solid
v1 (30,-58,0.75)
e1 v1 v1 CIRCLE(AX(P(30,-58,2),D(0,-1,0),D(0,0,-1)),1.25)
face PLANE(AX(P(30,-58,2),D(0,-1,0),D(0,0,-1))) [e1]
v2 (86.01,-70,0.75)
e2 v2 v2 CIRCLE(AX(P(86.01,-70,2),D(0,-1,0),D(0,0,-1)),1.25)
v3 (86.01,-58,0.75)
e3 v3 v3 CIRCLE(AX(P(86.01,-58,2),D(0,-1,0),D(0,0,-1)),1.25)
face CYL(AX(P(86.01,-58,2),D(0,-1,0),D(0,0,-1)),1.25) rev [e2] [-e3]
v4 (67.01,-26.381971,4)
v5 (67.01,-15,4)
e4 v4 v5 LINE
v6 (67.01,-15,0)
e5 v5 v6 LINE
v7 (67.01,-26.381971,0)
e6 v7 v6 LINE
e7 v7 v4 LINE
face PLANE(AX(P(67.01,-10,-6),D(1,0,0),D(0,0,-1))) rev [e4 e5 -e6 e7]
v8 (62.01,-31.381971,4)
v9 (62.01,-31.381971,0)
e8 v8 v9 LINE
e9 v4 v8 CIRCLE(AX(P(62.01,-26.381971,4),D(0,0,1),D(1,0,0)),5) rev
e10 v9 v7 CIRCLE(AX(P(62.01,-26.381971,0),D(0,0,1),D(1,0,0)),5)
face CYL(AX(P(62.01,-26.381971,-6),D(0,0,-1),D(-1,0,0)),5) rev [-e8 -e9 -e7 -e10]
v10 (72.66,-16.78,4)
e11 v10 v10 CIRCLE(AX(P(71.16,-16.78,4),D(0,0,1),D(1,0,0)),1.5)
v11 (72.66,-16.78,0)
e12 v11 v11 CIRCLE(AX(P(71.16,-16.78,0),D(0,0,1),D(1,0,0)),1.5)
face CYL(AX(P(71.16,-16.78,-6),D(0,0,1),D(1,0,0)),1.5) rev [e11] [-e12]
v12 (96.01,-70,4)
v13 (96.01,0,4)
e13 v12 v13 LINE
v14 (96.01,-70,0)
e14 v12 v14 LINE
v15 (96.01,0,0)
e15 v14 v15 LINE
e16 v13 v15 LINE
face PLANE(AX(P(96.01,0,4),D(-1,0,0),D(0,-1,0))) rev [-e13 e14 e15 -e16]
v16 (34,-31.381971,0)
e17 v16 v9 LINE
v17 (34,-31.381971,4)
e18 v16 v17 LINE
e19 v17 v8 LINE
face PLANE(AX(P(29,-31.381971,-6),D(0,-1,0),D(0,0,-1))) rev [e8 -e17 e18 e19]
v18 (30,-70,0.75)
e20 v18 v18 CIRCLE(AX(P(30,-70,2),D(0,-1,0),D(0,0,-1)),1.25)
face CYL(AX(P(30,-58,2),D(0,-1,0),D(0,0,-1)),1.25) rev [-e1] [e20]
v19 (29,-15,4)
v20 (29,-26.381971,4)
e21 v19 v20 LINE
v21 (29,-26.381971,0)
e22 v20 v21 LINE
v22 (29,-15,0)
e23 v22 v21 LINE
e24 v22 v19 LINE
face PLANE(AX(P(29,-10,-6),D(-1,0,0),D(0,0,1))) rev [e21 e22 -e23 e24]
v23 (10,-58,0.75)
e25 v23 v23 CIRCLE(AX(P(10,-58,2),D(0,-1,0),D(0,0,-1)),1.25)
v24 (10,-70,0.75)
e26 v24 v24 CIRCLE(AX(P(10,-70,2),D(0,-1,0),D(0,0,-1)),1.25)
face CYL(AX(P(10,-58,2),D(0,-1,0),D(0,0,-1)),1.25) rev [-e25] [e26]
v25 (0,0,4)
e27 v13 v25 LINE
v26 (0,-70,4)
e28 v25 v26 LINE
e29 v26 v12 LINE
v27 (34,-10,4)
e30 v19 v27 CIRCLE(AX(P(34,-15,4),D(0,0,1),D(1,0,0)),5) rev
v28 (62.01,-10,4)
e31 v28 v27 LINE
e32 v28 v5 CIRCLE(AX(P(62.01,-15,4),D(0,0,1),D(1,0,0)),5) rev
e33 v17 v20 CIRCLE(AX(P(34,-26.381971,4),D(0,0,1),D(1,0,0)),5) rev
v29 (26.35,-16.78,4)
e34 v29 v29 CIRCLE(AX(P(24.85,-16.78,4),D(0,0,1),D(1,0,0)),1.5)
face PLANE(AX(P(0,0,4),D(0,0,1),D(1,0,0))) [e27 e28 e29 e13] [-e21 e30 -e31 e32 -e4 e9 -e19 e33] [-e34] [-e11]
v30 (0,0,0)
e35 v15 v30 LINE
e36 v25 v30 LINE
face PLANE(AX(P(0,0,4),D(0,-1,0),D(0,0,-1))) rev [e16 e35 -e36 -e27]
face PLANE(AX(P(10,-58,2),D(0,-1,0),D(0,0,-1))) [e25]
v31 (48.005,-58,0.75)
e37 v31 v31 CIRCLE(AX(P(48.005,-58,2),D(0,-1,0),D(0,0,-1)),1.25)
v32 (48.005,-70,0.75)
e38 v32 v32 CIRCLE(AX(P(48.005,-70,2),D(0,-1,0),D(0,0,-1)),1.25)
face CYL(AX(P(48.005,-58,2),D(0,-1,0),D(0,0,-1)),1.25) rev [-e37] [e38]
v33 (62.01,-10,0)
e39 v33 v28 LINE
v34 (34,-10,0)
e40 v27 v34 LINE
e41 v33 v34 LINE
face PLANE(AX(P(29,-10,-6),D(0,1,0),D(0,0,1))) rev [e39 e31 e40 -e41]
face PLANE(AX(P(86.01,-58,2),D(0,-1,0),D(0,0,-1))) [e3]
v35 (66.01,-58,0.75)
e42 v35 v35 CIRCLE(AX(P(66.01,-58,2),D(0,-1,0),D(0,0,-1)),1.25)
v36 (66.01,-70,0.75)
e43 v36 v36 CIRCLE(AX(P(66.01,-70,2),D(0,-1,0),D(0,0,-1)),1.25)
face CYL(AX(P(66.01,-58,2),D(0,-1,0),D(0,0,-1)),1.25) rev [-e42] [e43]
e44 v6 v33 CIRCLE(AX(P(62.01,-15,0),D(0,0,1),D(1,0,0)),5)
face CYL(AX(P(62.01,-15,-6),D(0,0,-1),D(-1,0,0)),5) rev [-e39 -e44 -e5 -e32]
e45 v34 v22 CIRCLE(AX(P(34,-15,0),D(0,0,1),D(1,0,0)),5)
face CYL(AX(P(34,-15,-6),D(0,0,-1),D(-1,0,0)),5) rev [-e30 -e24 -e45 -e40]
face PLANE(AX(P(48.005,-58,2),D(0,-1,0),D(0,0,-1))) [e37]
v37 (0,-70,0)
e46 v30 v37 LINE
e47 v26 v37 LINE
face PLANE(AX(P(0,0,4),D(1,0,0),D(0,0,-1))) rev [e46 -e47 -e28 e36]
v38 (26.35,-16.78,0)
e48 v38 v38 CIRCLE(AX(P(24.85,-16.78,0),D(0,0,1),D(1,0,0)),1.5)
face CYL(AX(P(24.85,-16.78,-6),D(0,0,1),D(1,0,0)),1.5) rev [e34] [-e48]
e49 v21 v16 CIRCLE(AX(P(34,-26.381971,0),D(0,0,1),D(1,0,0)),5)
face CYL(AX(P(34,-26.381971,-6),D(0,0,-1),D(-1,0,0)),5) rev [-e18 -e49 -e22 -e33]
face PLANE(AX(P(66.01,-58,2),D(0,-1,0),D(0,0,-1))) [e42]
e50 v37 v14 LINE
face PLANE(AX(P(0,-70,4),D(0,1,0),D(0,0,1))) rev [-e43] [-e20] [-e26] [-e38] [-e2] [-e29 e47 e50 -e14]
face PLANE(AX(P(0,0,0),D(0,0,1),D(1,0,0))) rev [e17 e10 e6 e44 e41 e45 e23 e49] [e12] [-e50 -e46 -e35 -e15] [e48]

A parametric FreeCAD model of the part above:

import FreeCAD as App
import Part
import Sketcher
from FreeCAD import Vector
Q = App.Units.Quantity


def edges_at(feature, points):
    """Names of the edges that pass closest to the given points."""
    edges = feature.Shape.Edges
    near = lambda p: min(range(len(edges)), key=lambda i: edges[i].distToShape(Part.Vertex(*p))[0])
    return sorted({f"Edge{near(p) + 1}" for p in points})

doc = App.newDocument("Part")
body = doc.addObject("PartDesign::Body", "Body")

# Sketch on XY plane
sketch1 = body.newObject("Sketcher::SketchObject", "Sketch")
sketch1.AttachmentSupport = (doc.getObject("XY_Plane"), [""])
sketch1.MapMode = "FlatFace"
sketch1.addGeometry(Part.LineSegment(Vector(0, 0, 0), Vector(0, -70, 0)), False)
sketch1.addGeometry(Part.LineSegment(Vector(0, -70, 0), Vector(96, -70, 0)), False)
sketch1.addGeometry(Part.LineSegment(Vector(96, -70, 0), Vector(96, 0, 0)), False)
sketch1.addGeometry(Part.LineSegment(Vector(96, 0, 0), Vector(0, 0, 0)), False)
sketch1.addConstraint(Sketcher.Constraint("Coincident", 0, 2, 1, 1))
sketch1.addConstraint(Sketcher.Constraint("Coincident", 1, 2, 2, 1))
sketch1.addConstraint(Sketcher.Constraint("Coincident", 2, 2, 3, 1))
sketch1.addConstraint(Sketcher.Constraint("Coincident", 3, 2, 0, 1))
sketch1.addConstraint(Sketcher.Constraint("Vertical", 0))
sketch1.addConstraint(Sketcher.Constraint("Horizontal", 1))
sketch1.addConstraint(Sketcher.Constraint("Vertical", 2))
sketch1.addConstraint(Sketcher.Constraint("Horizontal", 3))
sketch1.addConstraint(Sketcher.Constraint("Coincident", 3, 2, -1, 1))
sketch1.addConstraint(Sketcher.Constraint("DistanceY", 0, 2, 0, 1, Q("70 mm")))
sketch1.addConstraint(Sketcher.Constraint("DistanceX", 1, 1, 1, 2, Q("96.01 mm")))
pad1 = body.newObject("PartDesign::Pad", "Pad")
pad1.Profile = sketch1
pad1.Length = 4

# Sketch on XZ plane
sketch2 = body.newObject("Sketcher::SketchObject", "Sketch001")
sketch2.AttachmentSupport = (doc.getObject("XZ_Plane"), [""])
sketch2.MapMode = "FlatFace"
sketch2.AttachmentOffset = App.Placement(Vector(0, 0, 70), App.Rotation())
sketch2.addGeometry(Part.Circle(Vector(48, 2, 0), Vector(0, 0, 1), 1.2), False)
sketch2.addGeometry(Part.Circle(Vector(10, 2, 0), Vector(0, 0, 1), 1.2), False)
sketch2.addGeometry(Part.Circle(Vector(30, 2, 0), Vector(0, 0, 1), 1.2), False)
sketch2.addGeometry(Part.Circle(Vector(66, 2, 0), Vector(0, 0, 1), 1.2), False)
sketch2.addGeometry(Part.Circle(Vector(86, 2, 0), Vector(0, 0, 1), 1.2), False)
sketch2.addConstraint(Sketcher.Constraint("Equal", 0, 1))
sketch2.addConstraint(Sketcher.Constraint("Equal", 1, 2))
sketch2.addConstraint(Sketcher.Constraint("Equal", 2, 3))
sketch2.addConstraint(Sketcher.Constraint("Equal", 3, 4))
sketch2.addConstraint(Sketcher.Constraint("Horizontal", 0, 3, 1, 3))
sketch2.addConstraint(Sketcher.Constraint("Horizontal", 1, 3, 2, 3))
sketch2.addConstraint(Sketcher.Constraint("Horizontal", 2, 3, 3, 3))
sketch2.addConstraint(Sketcher.Constraint("Horizontal", 3, 3, 4, 3))
sketch2.addConstraint(Sketcher.Constraint("Diameter", 0, Q("2.5 mm")))
sketch2.addConstraint(Sketcher.Constraint("DistanceY", -1, 1, 0, 3, Q("2 mm")))
sketch2.addConstraint(Sketcher.Constraint("DistanceX", -1, 1, 1, 3, Q("10 mm")))
sketch2.addConstraint(Sketcher.Constraint("DistanceX", -1, 1, 2, 3, Q("30 mm")))
sketch2.addConstraint(Sketcher.Constraint("DistanceX", 3, 3, 4, 3, Q("20 mm")))
sketch2.addConstraint(Sketcher.Constraint("DistanceX", -1, 1, 3, 3, Q("66.01 mm")))
sketch2.addConstraint(Sketcher.Constraint("DistanceX", -1, 1, 0, 3, Q("48.005 mm")))
pocket1 = body.newObject("PartDesign::Pocket", "Pocket")
pocket1.Profile = sketch2
pocket1.Length = 12

# Sketch on XY plane
sketch3 = body.newObject("Sketcher::SketchObject", "Sketch002")
sketch3.AttachmentSupport = (doc.getObject("XY_Plane"), [""])
sketch3.MapMode = "FlatFace"
sketch3.AttachmentOffset = App.Placement(Vector(0, 0, 4), App.Rotation())
sketch3.addGeometry(Part.Circle(Vector(24.9, -16.8, 0), Vector(0, 0, 1), 1.5), False)
sketch3.addGeometry(Part.Circle(Vector(71.2, -16.8, 0), Vector(0, 0, 1), 1.5), False)
sketch3.addGeometry(Part.LineSegment(Vector(29, -10, 0), Vector(29, -31.4, 0)), False)
sketch3.addGeometry(Part.LineSegment(Vector(29, -31.4, 0), Vector(67, -31.4, 0)), False)
sketch3.addGeometry(Part.LineSegment(Vector(67, -31.4, 0), Vector(67, -10, 0)), False)
sketch3.addGeometry(Part.LineSegment(Vector(67, -10, 0), Vector(29, -10, 0)), False)
sketch3.addConstraint(Sketcher.Constraint("Coincident", 2, 2, 3, 1))
sketch3.addConstraint(Sketcher.Constraint("Coincident", 3, 2, 4, 1))
sketch3.addConstraint(Sketcher.Constraint("Coincident", 4, 2, 5, 1))
sketch3.addConstraint(Sketcher.Constraint("Coincident", 5, 2, 2, 1))
sketch3.addConstraint(Sketcher.Constraint("Vertical", 2))
sketch3.addConstraint(Sketcher.Constraint("Horizontal", 3))
sketch3.addConstraint(Sketcher.Constraint("Vertical", 4))
sketch3.addConstraint(Sketcher.Constraint("Horizontal", 5))
sketch3.addConstraint(Sketcher.Constraint("Equal", 0, 1))
sketch3.addConstraint(Sketcher.Constraint("Horizontal", 0, 3, 1, 3))
sketch3.addConstraint(Sketcher.Constraint("Diameter", 0, Q("3 mm")))
sketch3.addConstraint(Sketcher.Constraint("DistanceX", -1, 1, 2, 2, Q("29 mm")))
sketch3.addConstraint(Sketcher.Constraint("DistanceY", 4, 2, -1, 1, Q("10 mm")))
sketch3.addConstraint(Sketcher.Constraint("DistanceX", 3, 1, 3, 2, Q("38.01 mm")))
sketch3.addConstraint(Sketcher.Constraint("DistanceX", -1, 1, 0, 3, Q("24.85 mm")))
sketch3.addConstraint(Sketcher.Constraint("DistanceY", 0, 3, -1, 1, Q("16.78 mm")))
sketch3.addConstraint(Sketcher.Constraint("DistanceX", -1, 1, 1, 3, Q("71.16 mm")))
sketch3.addConstraint(Sketcher.Constraint("DistanceY", 2, 2, 2, 1, Q("21.381971 mm")))
pocket2 = body.newObject("PartDesign::Pocket", "Pocket001")
pocket2.Profile = sketch3
pocket2.Length = 10
doc.recompute()

fillet = body.newObject("PartDesign::Fillet", "Fillet")
fillet.Base = (pocket2, edges_at(pocket2, [
    (29, -31.382, 2),
    (29, -10, 2),
    (67.01, -10, 2),
    (67.01, -31.382, 2),
]))
fillet.Radius = 5

doc.recompute()
